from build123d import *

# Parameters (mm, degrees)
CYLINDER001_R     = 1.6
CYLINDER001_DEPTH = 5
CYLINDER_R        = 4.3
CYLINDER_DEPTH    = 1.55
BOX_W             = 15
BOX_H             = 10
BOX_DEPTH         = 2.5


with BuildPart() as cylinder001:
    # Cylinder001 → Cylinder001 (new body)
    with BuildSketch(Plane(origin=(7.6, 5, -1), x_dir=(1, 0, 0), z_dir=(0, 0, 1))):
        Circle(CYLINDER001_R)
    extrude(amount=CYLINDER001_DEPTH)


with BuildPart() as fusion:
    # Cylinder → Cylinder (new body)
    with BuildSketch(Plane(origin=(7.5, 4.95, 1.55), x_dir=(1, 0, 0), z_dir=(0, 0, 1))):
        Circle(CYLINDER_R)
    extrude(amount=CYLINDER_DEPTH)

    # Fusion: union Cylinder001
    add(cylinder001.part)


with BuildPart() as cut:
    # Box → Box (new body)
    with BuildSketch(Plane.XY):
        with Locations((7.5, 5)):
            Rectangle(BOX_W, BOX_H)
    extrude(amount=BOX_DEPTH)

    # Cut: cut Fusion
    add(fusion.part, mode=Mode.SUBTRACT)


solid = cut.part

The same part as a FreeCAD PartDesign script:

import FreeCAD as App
import Part
import Sketcher

V = App.Vector
Q = App.Units.Quantity


def add_polygon(sketch, points):
    """Adds a closed chain of lines whose ends are joined by coincident constraints."""
    first, n = sketch.GeometryCount, len(points)
    for a, b in zip(points, points[1:] + points[:1]):
        sketch.addGeometry(Part.LineSegment(App.Vector(*a, 0), App.Vector(*b, 0)), False)
    for i in range(n):
        sketch.addConstraint(Sketcher.Constraint("Coincident", first + i, 2, first + (i + 1) % n, 1))

doc = App.newDocument("Part")
body = doc.addObject("PartDesign::Body", "Body")

sketch1 = body.newObject("Sketcher::SketchObject", "Sketch")
sketch1.AttachmentSupport = (doc.getObject("XY_Plane"), [""])
sketch1.MapMode = "FlatFace"
sketch1.AttachmentOffset = App.Placement(V(0, 0, -1), App.Rotation())
sketch1.addGeometry(Part.Circle(V(7.6, 5, 0), V(0, 0, 1), 1.6), False)
sketch1.addConstraint([
    Sketcher.Constraint("Diameter", 0, Q("3.2 mm")),
    Sketcher.Constraint("DistanceY", -1, 1, 0, 3, Q("5 mm")),
    Sketcher.Constraint("DistanceX", -1, 1, 0, 3, Q("7.6 mm")),
])
pad1 = body.newObject("PartDesign::Pad", "Pad")
pad1.Profile = sketch1
pad1.Length = 5
body2 = doc.addObject("PartDesign::Body", "Body001")

sketch2 = body2.newObject("Sketcher::SketchObject", "Sketch001")
sketch2.AttachmentSupport = (doc.getObject("XY_Plane001"), [""])
sketch2.MapMode = "FlatFace"
sketch2.AttachmentOffset = App.Placement(V(0, 0, 1.55), App.Rotation())
sketch2.addGeometry(Part.Circle(V(7.5, 4.95, 0), V(0, 0, 1), 4.3), False)
sketch2.addConstraint([
    Sketcher.Constraint("Diameter", 0, Q("8.6 mm")),
    Sketcher.Constraint("DistanceX", -1, 1, 0, 3, Q("7.5 mm")),
    Sketcher.Constraint("DistanceY", -1, 1, 0, 3, Q("4.95 mm")),
])
pad2 = body2.newObject("PartDesign::Pad", "Pad001")
pad2.Profile = sketch2
pad2.Length = 1.55
doc.recompute()

boolean = body2.newObject("PartDesign::Boolean", "Boolean")
boolean.Type = "Fuse"
boolean.addObjects([body])
body3 = doc.addObject("PartDesign::Body", "Body002")

sketch3 = body3.newObject("Sketcher::SketchObject", "Sketch002")
sketch3.AttachmentSupport = (doc.getObject("XY_Plane002"), [""])
sketch3.MapMode = "FlatFace"
add_polygon(sketch3, [(0, 10), (0, 0), (15, 0), (15, 10)])
sketch3.addConstraint([
    Sketcher.Constraint("Vertical", 0),
    Sketcher.Constraint("Horizontal", 1),
    Sketcher.Constraint("Vertical", 2),
    Sketcher.Constraint("Horizontal", 3),
    Sketcher.Constraint("Coincident", 0, 2, -1, 1),
    Sketcher.Constraint("DistanceX", 1, 1, 1, 2, Q("15 mm")),
    Sketcher.Constraint("DistanceY", 0, 2, 0, 1, Q("10 mm")),
])
pad3 = body3.newObject("PartDesign::Pad", "Pad002")
pad3.Profile = sketch3
pad3.Length = 2.5
doc.recompute()

boolean2 = body3.newObject("PartDesign::Boolean", "Boolean001")
boolean2.Type = "Cut"
boolean2.addObjects([body2])

doc.recompute()
